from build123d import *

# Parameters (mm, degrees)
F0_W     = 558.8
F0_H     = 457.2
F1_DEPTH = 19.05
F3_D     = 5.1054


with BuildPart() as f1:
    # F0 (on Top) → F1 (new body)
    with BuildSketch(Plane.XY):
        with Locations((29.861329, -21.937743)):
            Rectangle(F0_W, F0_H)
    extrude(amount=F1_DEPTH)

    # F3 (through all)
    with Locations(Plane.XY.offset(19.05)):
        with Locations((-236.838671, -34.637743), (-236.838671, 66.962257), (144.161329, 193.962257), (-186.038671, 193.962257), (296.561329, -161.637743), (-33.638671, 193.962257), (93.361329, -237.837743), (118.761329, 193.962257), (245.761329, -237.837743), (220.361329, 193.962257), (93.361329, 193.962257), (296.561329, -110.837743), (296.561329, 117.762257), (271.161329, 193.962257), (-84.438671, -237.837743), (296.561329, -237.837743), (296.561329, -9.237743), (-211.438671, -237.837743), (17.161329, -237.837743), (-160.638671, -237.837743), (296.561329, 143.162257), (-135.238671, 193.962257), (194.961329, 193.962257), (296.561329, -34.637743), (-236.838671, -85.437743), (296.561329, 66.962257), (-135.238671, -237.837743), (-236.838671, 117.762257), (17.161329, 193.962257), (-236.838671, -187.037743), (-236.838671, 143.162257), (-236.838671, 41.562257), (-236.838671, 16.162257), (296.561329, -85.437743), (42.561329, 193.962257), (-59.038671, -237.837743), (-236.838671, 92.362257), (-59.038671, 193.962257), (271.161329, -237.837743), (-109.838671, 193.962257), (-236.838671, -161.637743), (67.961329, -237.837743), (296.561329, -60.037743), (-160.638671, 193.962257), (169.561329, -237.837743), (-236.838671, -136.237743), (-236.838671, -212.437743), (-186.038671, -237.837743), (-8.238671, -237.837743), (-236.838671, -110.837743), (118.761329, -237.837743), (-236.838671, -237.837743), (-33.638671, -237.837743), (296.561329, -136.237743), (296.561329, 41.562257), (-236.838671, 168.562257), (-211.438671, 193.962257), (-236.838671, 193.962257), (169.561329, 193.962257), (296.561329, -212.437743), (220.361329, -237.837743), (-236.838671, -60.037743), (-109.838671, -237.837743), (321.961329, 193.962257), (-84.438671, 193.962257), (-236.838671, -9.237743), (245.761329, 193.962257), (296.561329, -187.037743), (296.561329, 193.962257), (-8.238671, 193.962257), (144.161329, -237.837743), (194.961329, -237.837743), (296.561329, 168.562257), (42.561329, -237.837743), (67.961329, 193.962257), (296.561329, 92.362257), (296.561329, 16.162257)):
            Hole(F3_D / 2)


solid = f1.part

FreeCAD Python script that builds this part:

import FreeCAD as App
import Part
import Sketcher
from FreeCAD import Vector
Q = App.Units.Quantity


def add_polygon(sketch, points):
    """Adds a closed chain of lines whose ends are joined by coincident constraints."""
    first, n = sketch.GeometryCount, len(points)
    for a, b in zip(points, points[1:] + points[:1]):
        sketch.addGeometry(Part.LineSegment(App.Vector(*a, 0), App.Vector(*b, 0)), False)
    for i in range(n):
        sketch.addConstraint(Sketcher.Constraint("Coincident", first + i, 2, first + (i + 1) % n, 1))

doc = App.newDocument("Part")
body = doc.addObject("PartDesign::Body", "Body")

# Sketch on XY plane
sketch1 = body.newObject("Sketcher::SketchObject", "Sketch")
sketch1.AttachmentSupport = (doc.getObject("XY_Plane"), [""])
sketch1.MapMode = "FlatFace"
add_polygon(sketch1, [(-250, 207), (-250, -251), (309, -251), (309, 207)])  # lines 0-3
sketch1.addConstraint([
    Sketcher.Constraint("Vertical", 0),
    Sketcher.Constraint("Horizontal", 1),
    Sketcher.Constraint("Vertical", 2),
    Sketcher.Constraint("Horizontal", 3),
    Sketcher.Constraint("DistanceX", 1, 1, 1, 2, Q("22 in")),
    Sketcher.Constraint("DistanceY", 0, 2, 0, 1, Q("18 in")),
    Sketcher.Constraint("DistanceX", 0, 2, -1, 1, Q("249.538671 mm")),
    Sketcher.Constraint("DistanceY", 0, 2, -1, 1, Q("250.537743 mm")),
])
pad1 = body.newObject("PartDesign::Pad", "Pad")
pad1.Profile = sketch1
pad1.Length = Q("0.75 in")

# Sketch on XY plane
sketch2 = body.newObject("Sketcher::SketchObject", "Sketch001")
sketch2.AttachmentSupport = (doc.getObject("XY_Plane"), [""])
sketch2.MapMode = "FlatFace"
sketch2.AttachmentOffset = App.Placement(Vector(0, 0, 0.75 * 25.4), App.Rotation())
sketch2.addGeometry([
    Part.Circle(Vector(-236.8, -34.6, 0), Vector(0, 0, 1), 2.6),  # 0
    Part.Circle(Vector(-236.8, 67, 0), Vector(0, 0, 1), 2.6),  # 1
    Part.Circle(Vector(144.2, 194, 0), Vector(0, 0, 1), 2.6),  # 2
    Part.Circle(Vector(-186, 194, 0), Vector(0, 0, 1), 2.6),  # 3
    Part.Circle(Vector(296.6, -161.6, 0), Vector(0, 0, 1), 2.6),  # 4
    Part.Circle(Vector(-33.6, 194, 0), Vector(0, 0, 1), 2.6),  # 5
    Part.Circle(Vector(93.4, -237.8, 0), Vector(0, 0, 1), 2.6),  # 6
    Part.Circle(Vector(118.8, 194, 0), Vector(0, 0, 1), 2.6),  # 7
    Part.Circle(Vector(245.8, -237.8, 0), Vector(0, 0, 1), 2.6),  # 8
    Part.Circle(Vector(220.4, 194, 0), Vector(0, 0, 1), 2.6),  # 9
    Part.Circle(Vector(93.4, 194, 0), Vector(0, 0, 1), 2.6),  # 10
    Part.Circle(Vector(296.6, -110.8, 0), Vector(0, 0, 1), 2.6),  # 11
    Part.Circle(Vector(296.6, 117.8, 0), Vector(0, 0, 1), 2.6),  # 12
    Part.Circle(Vector(271.2, 194, 0), Vector(0, 0, 1), 2.6),  # 13
    Part.Circle(Vector(-84.4, -237.8, 0), Vector(0, 0, 1), 2.6),  # 14
    Part.Circle(Vector(296.6, -237.8, 0), Vector(0, 0, 1), 2.6),  # 15
    Part.Circle(Vector(296.6, -9.2, 0), Vector(0, 0, 1), 2.6),  # 16
    Part.Circle(Vector(-211.4, -237.8, 0), Vector(0, 0, 1), 2.6),  # 17
    Part.Circle(Vector(17.2, -237.8, 0), Vector(0, 0, 1), 2.6),  # 18
    Part.Circle(Vector(-160.6, -237.8, 0), Vector(0, 0, 1), 2.6),  # 19
    Part.Circle(Vector(296.6, 143.2, 0), Vector(0, 0, 1), 2.6),  # 20
    Part.Circle(Vector(-135.2, 194, 0), Vector(0, 0, 1), 2.6),  # 21
    Part.Circle(Vector(195, 194, 0), Vector(0, 0, 1), 2.6),  # 22
    Part.Circle(Vector(296.6, -34.6, 0), Vector(0, 0, 1), 2.6),  # 23
    Part.Circle(Vector(-236.8, -85.4, 0), Vector(0, 0, 1), 2.6),  # 24
    Part.Circle(Vector(296.6, 67, 0), Vector(0, 0, 1), 2.6),  # 25
    Part.Circle(Vector(-135.2, -237.8, 0), Vector(0, 0, 1), 2.6),  # 26
    Part.Circle(Vector(-236.8, 117.8, 0), Vector(0, 0, 1), 2.6),  # 27
    Part.Circle(Vector(17.2, 194, 0), Vector(0, 0, 1), 2.6),  # 28
    Part.Circle(Vector(-236.8, -187, 0), Vector(0, 0, 1), 2.6),  # 29
    Part.Circle(Vector(-236.8, 143.2, 0), Vector(0, 0, 1), 2.6),  # 30
    Part.Circle(Vector(-236.8, 41.6, 0), Vector(0, 0, 1), 2.6),  # 31
    Part.Circle(Vector(-236.8, 16.2, 0), Vector(0, 0, 1), 2.6),  # 32
    Part.Circle(Vector(296.6, -85.4, 0), Vector(0, 0, 1), 2.6),  # 33
    Part.Circle(Vector(42.6, 194, 0), Vector(0, 0, 1), 2.6),  # 34
    Part.Circle(Vector(-59, -237.8, 0), Vector(0, 0, 1), 2.6),  # 35
    Part.Circle(Vector(-236.8, 92.4, 0), Vector(0, 0, 1), 2.6),  # 36
    Part.Circle(Vector(-59, 194, 0), Vector(0, 0, 1), 2.6),  # 37
    Part.Circle(Vector(271.2, -237.8, 0), Vector(0, 0, 1), 2.6),  # 38
    Part.Circle(Vector(-109.8, 194, 0), Vector(0, 0, 1), 2.6),  # 39
    Part.Circle(Vector(-236.8, -161.6, 0), Vector(0, 0, 1), 2.6),  # 40
    Part.Circle(Vector(68, -237.8, 0), Vector(0, 0, 1), 2.6),  # 41
    Part.Circle(Vector(296.6, -60, 0), Vector(0, 0, 1), 2.6),  # 42
    Part.Circle(Vector(-160.6, 194, 0), Vector(0, 0, 1), 2.6),  # 43
    Part.Circle(Vector(169.6, -237.8, 0), Vector(0, 0, 1), 2.6),  # 44
    Part.Circle(Vector(-236.8, -136.2, 0), Vector(0, 0, 1), 2.6),  # 45
    Part.Circle(Vector(-236.8, -212.4, 0), Vector(0, 0, 1), 2.6),  # 46
    Part.Circle(Vector(-186, -237.8, 0), Vector(0, 0, 1), 2.6),  # 47
    Part.Circle(Vector(-8.2, -237.8, 0), Vector(0, 0, 1), 2.6),  # 48
    Part.Circle(Vector(-236.8, -110.8, 0), Vector(0, 0, 1), 2.6),  # 49
    Part.Circle(Vector(118.8, -237.8, 0), Vector(0, 0, 1), 2.6),  # 50
    Part.Circle(Vector(-236.8, -237.8, 0), Vector(0, 0, 1), 2.6),  # 51
    Part.Circle(Vector(-33.6, -237.8, 0), Vector(0, 0, 1), 2.6),  # 52
    Part.Circle(Vector(296.6, -136.2, 0), Vector(0, 0, 1), 2.6),  # 53
    Part.Circle(Vector(296.6, 41.6, 0), Vector(0, 0, 1), 2.6),  # 54
    Part.Circle(Vector(-236.8, 168.6, 0), Vector(0, 0, 1), 2.6),  # 55
    Part.Circle(Vector(-211.4, 194, 0), Vector(0, 0, 1), 2.6),  # 56
    Part.Circle(Vector(-236.8, 194, 0), Vector(0, 0, 1), 2.6),  # 57
    Part.Circle(Vector(169.6, 194, 0), Vector(0, 0, 1), 2.6),  # 58
    Part.Circle(Vector(296.6, -212.4, 0), Vector(0, 0, 1), 2.6),  # 59
    Part.Circle(Vector(220.4, -237.8, 0), Vector(0, 0, 1), 2.6),  # 60
    Part.Circle(Vector(-236.8, -60, 0), Vector(0, 0, 1), 2.6),  # 61
    Part.Circle(Vector(-109.8, -237.8, 0), Vector(0, 0, 1), 2.6),  # 62
    Part.Circle(Vector(322, 194, 0), Vector(0, 0, 1), 2.6),  # 63
    Part.Circle(Vector(-84.4, 194, 0), Vector(0, 0, 1), 2.6),  # 64
    Part.Circle(Vector(-236.8, -9.2, 0), Vector(0, 0, 1), 2.6),  # 65
    Part.Circle(Vector(245.8, 194, 0), Vector(0, 0, 1), 2.6),  # 66
    Part.Circle(Vector(296.6, -187, 0), Vector(0, 0, 1), 2.6),  # 67
    Part.Circle(Vector(296.6, 194, 0), Vector(0, 0, 1), 2.6),  # 68
    Part.Circle(Vector(-8.2, 194, 0), Vector(0, 0, 1), 2.6),  # 69
    Part.Circle(Vector(144.2, -237.8, 0), Vector(0, 0, 1), 2.6),  # 70
    Part.Circle(Vector(195, -237.8, 0), Vector(0, 0, 1), 2.6),  # 71
    Part.Circle(Vector(296.6, 168.6, 0), Vector(0, 0, 1), 2.6),  # 72
    Part.Circle(Vector(42.6, -237.8, 0), Vector(0, 0, 1), 2.6),  # 73
    Part.Circle(Vector(68, 194, 0), Vector(0, 0, 1), 2.6),  # 74
    Part.Circle(Vector(296.6, 92.4, 0), Vector(0, 0, 1), 2.6),  # 75
    Part.Circle(Vector(296.6, 16.2, 0), Vector(0, 0, 1), 2.6),  # 76
], False)
sketch2.addConstraint([
    Sketcher.Constraint("Equal", 0, 1),
    Sketcher.Constraint("Equal", 1, 2),
    Sketcher.Constraint("Equal", 2, 3),
    Sketcher.Constraint("Equal", 3, 4),
    Sketcher.Constraint("Equal", 4, 5),
    Sketcher.Constraint("Equal", 5, 6),
    Sketcher.Constraint("Equal", 6, 7),
    Sketcher.Constraint("Equal", 7, 8),
    Sketcher.Constraint("Equal", 8, 9),
    Sketcher.Constraint("Equal", 9, 10),
    Sketcher.Constraint("Equal", 10, 11),
    Sketcher.Constraint("Equal", 11, 12),
    Sketcher.Constraint("Equal", 12, 13),
    Sketcher.Constraint("Equal", 13, 14),
    Sketcher.Constraint("Equal", 14, 15),
    Sketcher.Constraint("Equal", 15, 16),
    Sketcher.Constraint("Equal", 16, 17),
    Sketcher.Constraint("Equal", 17, 18),
    Sketcher.Constraint("Equal", 18, 19),
    Sketcher.Constraint("Equal", 19, 20),
    Sketcher.Constraint("Equal", 20, 21),
    Sketcher.Constraint("Equal", 21, 22),
    Sketcher.Constraint("Equal", 22, 23),
    Sketcher.Constraint("Equal", 23, 24),
    Sketcher.Constraint("Equal", 24, 25),
    Sketcher.Constraint("Equal", 25, 26),
    Sketcher.Constraint("Equal", 26, 27),
    Sketcher.Constraint("Equal", 27, 28),
    Sketcher.Constraint("Equal", 28, 29),
    Sketcher.Constraint("Equal", 29, 30),
    Sketcher.Constraint("Equal", 30, 31),
    Sketcher.Constraint("Equal", 31, 32),
    Sketcher.Constraint("Equal", 32, 33),
    Sketcher.Constraint("Equal", 33, 34),
    Sketcher.Constraint("Equal", 34, 35),
    Sketcher.Constraint("Equal", 35, 36),
    Sketcher.Constraint("Equal", 36, 37),
    Sketcher.Constraint("Equal", 37, 38),
    Sketcher.Constraint("Equal", 38, 39),
    Sketcher.Constraint("Equal", 39, 40),
    Sketcher.Constraint("Equal", 40, 41),
    Sketcher.Constraint("Equal", 41, 42),
    Sketcher.Constraint("Equal", 42, 43),
    Sketcher.Constraint("Equal", 43, 44),
    Sketcher.Constraint("Equal", 44, 45),
    Sketcher.Constraint("Equal", 45, 46),
    Sketcher.Constraint("Equal", 46, 47),
    Sketcher.Constraint("Equal", 47, 48),
    Sketcher.Constraint("Equal", 48, 49),
    Sketcher.Constraint("Equal", 49, 50),
    Sketcher.Constraint("Equal", 50, 51),
    Sketcher.Constraint("Equal", 51, 52),
    Sketcher.Constraint("Equal", 52, 53),
    Sketcher.Constraint("Equal", 53, 54),
    Sketcher.Constraint("Equal", 54, 55),
    Sketcher.Constraint("Equal", 55, 56),
    Sketcher.Constraint("Equal", 56, 57),
    Sketcher.Constraint("Equal", 57, 58),
    Sketcher.Constraint("Equal", 58, 59),
    Sketcher.Constraint("Equal", 59, 60),
    Sketcher.Constraint("Equal", 60, 61),
    Sketcher.Constraint("Equal", 61, 62),
    Sketcher.Constraint("Equal", 62, 63),
    Sketcher.Constraint("Equal", 63, 64),
    Sketcher.Constraint("Equal", 64, 65),
    Sketcher.Constraint("Equal", 65, 66),
    Sketcher.Constraint("Equal", 66, 67),
    Sketcher.Constraint("Equal", 67, 68),
    Sketcher.Constraint("Equal", 68, 69),
    Sketcher.Constraint("Equal", 69, 70),
    Sketcher.Constraint("Equal", 70, 71),
    Sketcher.Constraint("Equal", 71, 72),
    Sketcher.Constraint("Equal", 72, 73),
    Sketcher.Constraint("Equal", 73, 74),
    Sketcher.Constraint("Equal", 74, 75),
    Sketcher.Constraint("Equal", 75, 76),
    Sketcher.Constraint("Horizontal", 2, 3, 3, 3),
    Sketcher.Constraint("Horizontal", 3, 3, 5, 3),
    Sketcher.Constraint("Horizontal", 5, 3, 7, 3),
    Sketcher.Constraint("Horizontal", 6, 3, 8, 3),
    Sketcher.Constraint("Horizontal", 7, 3, 9, 3),
    Sketcher.Constraint("Horizontal", 9, 3, 10, 3),
    Sketcher.Constraint("Horizontal", 10, 3, 13, 3),
    Sketcher.Constraint("Horizontal", 8, 3, 14, 3),
    Sketcher.Constraint("Horizontal", 14, 3, 15, 3),
    Sketcher.Constraint("Horizontal", 15, 3, 17, 3),
    Sketcher.Constraint("Horizontal", 17, 3, 18, 3),
    Sketcher.Constraint("Horizontal", 18, 3, 19, 3),
    Sketcher.Constraint("Horizontal", 13, 3, 21, 3),
    Sketcher.Constraint("Horizontal", 21, 3, 22, 3),
    Sketcher.Constraint("Horizontal", 0, 3, 23, 3),
    Sketcher.Constraint("Horizontal", 1, 3, 25, 3),
    Sketcher.Constraint("Horizontal", 19, 3, 26, 3),
    Sketcher.Constraint("Horizontal", 12, 3, 27, 3),
    Sketcher.Constraint("Horizontal", 22, 3, 28, 3),
    Sketcher.Constraint("Horizontal", 20, 3, 30, 3),
    Sketcher.Constraint("Horizontal", 24, 3, 33, 3),
    Sketcher.Constraint("Horizontal", 28, 3, 34, 3),
    Sketcher.Constraint("Horizontal", 26, 3, 35, 3),
    Sketcher.Constraint("Horizontal", 34, 3, 37, 3),
    Sketcher.Constraint("Horizontal", 35, 3, 38, 3),
    Sketcher.Constraint("Horizontal", 37, 3, 39, 3),
    Sketcher.Constraint("Horizontal", 4, 3, 40, 3),
    Sketcher.Constraint("Horizontal", 38, 3, 41, 3),
    Sketcher.Constraint("Horizontal", 39, 3, 43, 3),
    Sketcher.Constraint("Horizontal", 41, 3, 44, 3),
    Sketcher.Constraint("Horizontal", 44, 3, 47, 3),
    Sketcher.Constraint("Horizontal", 47, 3, 48, 3),
    Sketcher.Constraint("Horizontal", 11, 3, 49, 3),
    Sketcher.Constraint("Horizontal", 48, 3, 50, 3),
    Sketcher.Constraint("Horizontal", 50, 3, 51, 3),
    Sketcher.Constraint("Horizontal", 51, 3, 52, 3),
    Sketcher.Constraint("Horizontal", 45, 3, 53, 3),
    Sketcher.Constraint("Horizontal", 31, 3, 54, 3),
    Sketcher.Constraint("Horizontal", 43, 3, 56, 3),
    Sketcher.Constraint("Horizontal", 56, 3, 57, 3),
    Sketcher.Constraint("Horizontal", 57, 3, 58, 3),
    Sketcher.Constraint("Horizontal", 46, 3, 59, 3),
    Sketcher.Constraint("Horizontal", 52, 3, 60, 3),
    Sketcher.Constraint("Horizontal", 42, 3, 61, 3),
    Sketcher.Constraint("Horizontal", 60, 3, 62, 3),
    Sketcher.Constraint("Horizontal", 58, 3, 63, 3),
    Sketcher.Constraint("Horizontal", 63, 3, 64, 3),
    Sketcher.Constraint("Horizontal", 16, 3, 65, 3),
    Sketcher.Constraint("Horizontal", 64, 3, 66, 3),
    Sketcher.Constraint("Horizontal", 29, 3, 67, 3),
    Sketcher.Constraint("Horizontal", 66, 3, 68, 3),
    Sketcher.Constraint("Horizontal", 68, 3, 69, 3),
    Sketcher.Constraint("Horizontal", 62, 3, 70, 3),
    Sketcher.Constraint("Horizontal", 70, 3, 71, 3),
    Sketcher.Constraint("Horizontal", 55, 3, 72, 3),
    Sketcher.Constraint("Horizontal", 71, 3, 73, 3),
    Sketcher.Constraint("Horizontal", 69, 3, 74, 3),
    Sketcher.Constraint("Horizontal", 36, 3, 75, 3),
    Sketcher.Constraint("Horizontal", 32, 3, 76, 3),
    Sketcher.Constraint("Vertical", 0, 3, 1, 3),
    Sketcher.Constraint("Vertical", 6, 3, 10, 3),
    Sketcher.Constraint("Vertical", 4, 3, 11, 3),
    Sketcher.Constraint("Vertical", 11, 3, 12, 3),
    Sketcher.Constraint("Vertical", 12, 3, 15, 3),
    Sketcher.Constraint("Vertical", 15, 3, 16, 3),
    Sketcher.Constraint("Vertical", 16, 3, 20, 3),
    Sketcher.Constraint("Vertical", 20, 3, 23, 3),
    Sketcher.Constraint("Vertical", 1, 3, 24, 3),
    Sketcher.Constraint("Vertical", 23, 3, 25, 3),
    Sketcher.Constraint("Vertical", 21, 3, 26, 3),
    Sketcher.Constraint("Vertical", 24, 3, 27, 3),
    Sketcher.Constraint("Vertical", 18, 3, 28, 3),
    Sketcher.Constraint("Vertical", 27, 3, 29, 3),
    Sketcher.Constraint("Vertical", 29, 3, 30, 3),
    Sketcher.Constraint("Vertical", 30, 3, 31, 3),
    Sketcher.Constraint("Vertical", 31, 3, 32, 3),
    Sketcher.Constraint("Vertical", 25, 3, 33, 3),
    Sketcher.Constraint("Vertical", 32, 3, 36, 3),
    Sketcher.Constraint("Vertical", 35, 3, 37, 3),
    Sketcher.Constraint("Vertical", 13, 3, 38, 3),
    Sketcher.Constraint("Vertical", 36, 3, 40, 3),
    Sketcher.Constraint("Vertical", 33, 3, 42, 3),
    Sketcher.Constraint("Vertical", 19, 3, 43, 3),
    Sketcher.Constraint("Vertical", 40, 3, 45, 3),
    Sketcher.Constraint("Vertical", 45, 3, 46, 3),
    Sketcher.Constraint("Vertical", 3, 3, 47, 3),
    Sketcher.Constraint("Vertical", 46, 3, 49, 3),
    Sketcher.Constraint("Vertical", 7, 3, 50, 3),
    Sketcher.Constraint("Vertical", 49, 3, 51, 3),
    Sketcher.Constraint("Vertical", 5, 3, 52, 3),
    Sketcher.Constraint("Vertical", 42, 3, 53, 3),
    Sketcher.Constraint("Vertical", 53, 3, 54, 3),
    Sketcher.Constraint("Vertical", 51, 3, 55, 3),
    Sketcher.Constraint("Vertical", 17, 3, 56, 3),
    Sketcher.Constraint("Vertical", 55, 3, 57, 3),
    Sketcher.Constraint("Vertical", 44, 3, 58, 3),
    Sketcher.Constraint("Vertical", 54, 3, 59, 3),
    Sketcher.Constraint("Vertical", 9, 3, 60, 3),
    Sketcher.Constraint("Vertical", 57, 3, 61, 3),
    Sketcher.Constraint("Vertical", 39, 3, 62, 3),
    Sketcher.Constraint("Vertical", 14, 3, 64, 3),
    Sketcher.Constraint("Vertical", 61, 3, 65, 3),
    Sketcher.Constraint("Vertical", 8, 3, 66, 3),
    Sketcher.Constraint("Vertical", 59, 3, 67, 3),
    Sketcher.Constraint("Vertical", 67, 3, 68, 3),
    Sketcher.Constraint("Vertical", 48, 3, 69, 3),
    Sketcher.Constraint("Vertical", 2, 3, 70, 3),
    Sketcher.Constraint("Vertical", 22, 3, 71, 3),
    Sketcher.Constraint("Vertical", 68, 3, 72, 3),
    Sketcher.Constraint("Vertical", 34, 3, 73, 3),
    Sketcher.Constraint("Vertical", 41, 3, 74, 3),
    Sketcher.Constraint("Vertical", 72, 3, 75, 3),
    Sketcher.Constraint("Vertical", 75, 3, 76, 3),
    Sketcher.Constraint("Diameter", 0, Q("0.201 in")),
    Sketcher.Constraint("DistanceX", 0, 3, -1, 1, Q("236.838671 mm")),
    Sketcher.Constraint("DistanceX", -1, 1, 2, 3, Q("144.161329 mm")),
    Sketcher.Constraint("DistanceX", 3, 3, -1, 1, Q("186.038671 mm")),
    Sketcher.Constraint("DistanceX", -1, 1, 4, 3, Q("296.561329 mm")),
    Sketcher.Constraint("DistanceX", 5, 3, -1, 1, Q("33.638671 mm")),
    Sketcher.Constraint("DistanceX", -1, 1, 6, 3, Q("93.361329 mm")),
    Sketcher.Constraint("DistanceX", -1, 1, 7, 3, Q("118.761329 mm")),
    Sketcher.Constraint("DistanceX", -1, 1, 8, 3, Q("245.761329 mm")),
    Sketcher.Constraint("DistanceX", -1, 1, 9, 3, Q("220.361329 mm")),
    Sketcher.Constraint("DistanceX", -1, 1, 13, 3, Q("271.161329 mm")),
    Sketcher.Constraint("DistanceX", 14, 3, -1, 1, Q("84.438671 mm")),
    Sketcher.Constraint("DistanceX", 17, 3, -1, 1, Q("211.438671 mm")),
    Sketcher.Constraint("DistanceX", -1, 1, 18, 3, Q("17.161329 mm")),
    Sketcher.Constraint("DistanceX", 19, 3, -1, 1, Q("160.638671 mm")),
    Sketcher.Constraint("DistanceX", 21, 3, -1, 1, Q("135.238671 mm")),
    Sketcher.Constraint("DistanceX", -1, 1, 22, 3, Q("194.961329 mm")),
    Sketcher.Constraint("DistanceX", -1, 1, 34, 3, Q("42.561329 mm")),
    Sketcher.Constraint("DistanceX", 35, 3, -1, 1, Q("59.038671 mm")),
    Sketcher.Constraint("DistanceX", 39, 3, -1, 1, Q("109.838671 mm")),
    Sketcher.Constraint("DistanceX", -1, 1, 41, 3, Q("67.961329 mm")),
    Sketcher.Constraint("DistanceX", -1, 1, 44, 3, Q("169.561329 mm")),
    Sketcher.Constraint("DistanceX", 48, 3, -1, 1, Q("8.238671 mm")),
    Sketcher.Constraint("DistanceX", -1, 1, 63, 3, Q("321.961329 mm")),
    Sketcher.Constraint("DistanceY", 0, 3, -1, 1, Q("34.637743 mm")),
    Sketcher.Constraint("DistanceY", -1, 1, 1, 3, Q("66.962257 mm")),
    Sketcher.Constraint("DistanceY", -1, 1, 2, 3, Q("193.962257 mm")),
    Sketcher.Constraint("DistanceY", 4, 3, -1, 1, Q("161.637743 mm")),
    Sketcher.Constraint("DistanceY", 6, 3, -1, 1, Q("237.837743 mm")),
    Sketcher.Constraint("DistanceY", 11, 3, -1, 1, Q("110.837743 mm")),
    Sketcher.Constraint("DistanceY", -1, 1, 12, 3, Q("117.762257 mm")),
    Sketcher.Constraint("DistanceY", 16, 3, -1, 1, Q("9.237743 mm")),
    Sketcher.Constraint("DistanceY", -1, 1, 20, 3, Q("143.162257 mm")),
    Sketcher.Constraint("DistanceY", 24, 3, -1, 1, Q("85.437743 mm")),
    Sketcher.Constraint("DistanceY", 29, 3, -1, 1, Q("187.037743 mm")),
    Sketcher.Constraint("DistanceY", -1, 1, 31, 3, Q("41.562257 mm")),
    Sketcher.Constraint("DistanceY", -1, 1, 32, 3, Q("16.162257 mm")),
    Sketcher.Constraint("DistanceY", -1, 1, 36, 3, Q("92.362257 mm")),
    Sketcher.Constraint("DistanceY", 42, 3, -1, 1, Q("60.037743 mm")),
    Sketcher.Constraint("DistanceY", 45, 3, -1, 1, Q("136.237743 mm")),
    Sketcher.Constraint("DistanceY", 46, 3, -1, 1, Q("212.437743 mm")),
    Sketcher.Constraint("DistanceY", -1, 1, 55, 3, Q("168.562257 mm")),
])
doc.recompute()
hole = body.newObject("PartDesign::Hole", "Hole")
hole.Profile = sketch2
hole.ThreadType = "None"
hole.Diameter = Q("0.201 in")
hole.DepthType = "ThroughAll"

doc.recompute()
